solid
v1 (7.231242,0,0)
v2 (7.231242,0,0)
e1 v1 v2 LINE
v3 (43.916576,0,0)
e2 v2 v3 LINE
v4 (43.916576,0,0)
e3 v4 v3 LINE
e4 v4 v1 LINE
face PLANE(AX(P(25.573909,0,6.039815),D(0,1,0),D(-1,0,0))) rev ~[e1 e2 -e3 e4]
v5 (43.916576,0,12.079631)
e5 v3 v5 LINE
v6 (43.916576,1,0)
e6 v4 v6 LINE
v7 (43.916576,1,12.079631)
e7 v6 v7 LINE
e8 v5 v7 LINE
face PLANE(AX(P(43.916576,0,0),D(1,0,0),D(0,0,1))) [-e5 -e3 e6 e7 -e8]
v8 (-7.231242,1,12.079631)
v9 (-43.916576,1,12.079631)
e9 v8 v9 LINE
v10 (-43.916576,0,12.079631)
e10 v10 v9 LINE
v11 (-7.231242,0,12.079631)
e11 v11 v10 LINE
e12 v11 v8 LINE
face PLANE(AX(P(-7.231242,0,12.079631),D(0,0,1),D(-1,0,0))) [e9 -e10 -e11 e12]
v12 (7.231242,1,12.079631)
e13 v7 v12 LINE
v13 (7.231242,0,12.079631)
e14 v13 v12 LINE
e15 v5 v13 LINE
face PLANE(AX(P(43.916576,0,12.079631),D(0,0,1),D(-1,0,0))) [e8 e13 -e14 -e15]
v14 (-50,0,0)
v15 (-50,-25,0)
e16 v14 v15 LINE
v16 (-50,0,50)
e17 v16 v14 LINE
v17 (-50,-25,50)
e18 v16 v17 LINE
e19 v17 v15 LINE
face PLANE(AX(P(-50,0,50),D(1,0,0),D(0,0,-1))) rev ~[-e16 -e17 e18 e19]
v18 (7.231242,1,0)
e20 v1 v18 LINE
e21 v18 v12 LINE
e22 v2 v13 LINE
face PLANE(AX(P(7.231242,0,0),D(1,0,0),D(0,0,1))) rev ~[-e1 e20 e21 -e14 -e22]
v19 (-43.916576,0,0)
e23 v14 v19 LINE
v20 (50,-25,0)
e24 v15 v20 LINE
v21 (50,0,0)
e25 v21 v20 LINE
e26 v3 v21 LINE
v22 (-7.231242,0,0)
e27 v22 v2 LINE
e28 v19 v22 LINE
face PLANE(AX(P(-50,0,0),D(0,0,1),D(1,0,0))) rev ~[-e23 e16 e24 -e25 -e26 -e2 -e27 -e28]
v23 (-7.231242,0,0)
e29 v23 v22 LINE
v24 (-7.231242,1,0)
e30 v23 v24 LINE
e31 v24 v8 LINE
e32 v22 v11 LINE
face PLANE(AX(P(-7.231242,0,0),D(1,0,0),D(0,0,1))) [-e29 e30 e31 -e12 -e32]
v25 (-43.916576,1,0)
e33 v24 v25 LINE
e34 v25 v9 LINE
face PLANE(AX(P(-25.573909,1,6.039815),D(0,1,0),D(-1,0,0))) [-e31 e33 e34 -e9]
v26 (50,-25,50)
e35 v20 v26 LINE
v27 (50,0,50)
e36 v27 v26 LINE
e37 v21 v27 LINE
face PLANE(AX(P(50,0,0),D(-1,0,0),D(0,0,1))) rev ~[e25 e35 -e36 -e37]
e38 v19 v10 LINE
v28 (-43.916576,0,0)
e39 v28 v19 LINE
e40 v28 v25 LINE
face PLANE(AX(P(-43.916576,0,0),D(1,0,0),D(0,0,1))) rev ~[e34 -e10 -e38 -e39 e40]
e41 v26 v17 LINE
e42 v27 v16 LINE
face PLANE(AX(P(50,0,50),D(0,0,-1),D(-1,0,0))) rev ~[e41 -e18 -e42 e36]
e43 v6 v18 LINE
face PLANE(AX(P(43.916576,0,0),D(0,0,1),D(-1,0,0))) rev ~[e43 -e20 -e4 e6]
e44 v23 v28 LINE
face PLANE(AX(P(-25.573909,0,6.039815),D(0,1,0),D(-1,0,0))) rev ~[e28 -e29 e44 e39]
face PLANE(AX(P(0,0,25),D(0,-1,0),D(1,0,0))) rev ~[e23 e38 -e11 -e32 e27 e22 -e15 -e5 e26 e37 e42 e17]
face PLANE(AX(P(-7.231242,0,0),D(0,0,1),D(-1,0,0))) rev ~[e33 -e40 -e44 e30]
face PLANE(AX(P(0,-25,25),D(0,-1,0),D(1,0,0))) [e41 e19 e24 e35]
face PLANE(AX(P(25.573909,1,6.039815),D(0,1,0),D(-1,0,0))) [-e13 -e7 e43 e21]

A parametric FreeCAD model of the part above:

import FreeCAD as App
import Part
import Sketcher

V = App.Vector
Q = App.Units.Quantity


def add_polygon(sketch, points):
    """Adds a closed chain of lines whose ends are joined by coincident constraints."""
    first, n = sketch.GeometryCount, len(points)
    for a, b in zip(points, points[1:] + points[:1]):
        sketch.addGeometry(Part.LineSegment(App.Vector(*a, 0), App.Vector(*b, 0)), False)
    for i in range(n):
        sketch.addConstraint(Sketcher.Constraint("Coincident", first + i, 2, first + (i + 1) % n, 1))

doc = App.newDocument("Part")
params = doc.addObject("Spreadsheet::Sheet", "Params")
for row, (alias, value) in enumerate([
    ("sketch1_width", "100 mm"),
    ("sketch1_height", "50 mm"),
    ("pad1_length", "25 mm"),
    ("pad2_length", "1 mm"),
], start=1):
    params.set(f"A{row}", alias)
    params.set(f"B{row}", "=" + value)
    params.setAlias(f"B{row}", alias)

body = doc.addObject("PartDesign::Body", "Body")

# Sketch on XZ plane
sketch1 = body.newObject("Sketcher::SketchObject", "Sketch")
sketch1.AttachmentSupport = (doc.getObject("XZ_Plane"), [""])
sketch1.MapMode = "FlatFace"
add_polygon(sketch1, [(-50, 0), (50, 0), (50, 50), (-50, 50)])  # lines 0-3
sketch1.addConstraint(Sketcher.Constraint("Horizontal", 0))
sketch1.addConstraint(Sketcher.Constraint("Vertical", 1))
sketch1.addConstraint(Sketcher.Constraint("Horizontal", 2))
sketch1.addConstraint(Sketcher.Constraint("Vertical", 3))
sketch1.addConstraint(Sketcher.Constraint("Symmetric", 0, 2, 3, 2, -1, 1))
sketch1.addConstraint(Sketcher.Constraint("DistanceX", 0, 1, 0, 2, Q("100 mm")))
sketch1.addConstraint(Sketcher.Constraint("DistanceY", 1, 1, 1, 2, Q("50 mm")))
sketch1.setExpression("Constraints[9]", "Params.sketch1_width")
sketch1.setExpression("Constraints[10]", "Params.sketch1_height")
pad1 = body.newObject("PartDesign::Pad", "Pad")
pad1.Profile = sketch1
pad1.setExpression("Length", "Params.pad1_length")

# Sketch on XZ plane
sketch2 = body.newObject("Sketcher::SketchObject", "Sketch001")
sketch2.AttachmentSupport = (doc.getObject("XZ_Plane"), [""])
sketch2.MapMode = "FlatFace"
add_polygon(sketch2, [(44, 12), (44, 0), (7, 0), (7, 12)])  # lines 0-3
add_polygon(sketch2, [(-7, 12), (-7, 0), (-44, 0), (-44, 12)])  # lines 4-7
sketch2.addConstraint(Sketcher.Constraint("Vertical", 0))
sketch2.addConstraint(Sketcher.Constraint("Horizontal", 1))
sketch2.addConstraint(Sketcher.Constraint("Vertical", 2))
sketch2.addConstraint(Sketcher.Constraint("Horizontal", 3))
sketch2.addConstraint(Sketcher.Constraint("Vertical", 4))
sketch2.addConstraint(Sketcher.Constraint("Horizontal", 5))
sketch2.addConstraint(Sketcher.Constraint("Vertical", 6))
sketch2.addConstraint(Sketcher.Constraint("Horizontal", 7))
sketch2.addConstraint(Sketcher.Constraint("Symmetric", 1, 2, 4, 2, -1, 1))
sketch2.addConstraint(Sketcher.Constraint("Symmetric", 0, 2, 5, 2, -2))
sketch2.addConstraint(Sketcher.Constraint("Horizontal", 3, 2, 6, 2))
sketch2.addConstraint(Sketcher.Constraint("DistanceY", 0, 2, 0, 1, Q("12.079631 mm")))
sketch2.addConstraint(Sketcher.Constraint("DistanceX", 1, 2, 1, 1, Q("36.685333 mm")))
sketch2.addConstraint(Sketcher.Constraint("DistanceX", 5, 2, 0, 2, Q("87.833151 mm")))
pad2 = body.newObject("PartDesign::Pad", "Pad001")
pad2.Profile = sketch2
pad2.setExpression("Length", "Params.pad2_length")
pad2.Reversed = True

doc.recompute()
